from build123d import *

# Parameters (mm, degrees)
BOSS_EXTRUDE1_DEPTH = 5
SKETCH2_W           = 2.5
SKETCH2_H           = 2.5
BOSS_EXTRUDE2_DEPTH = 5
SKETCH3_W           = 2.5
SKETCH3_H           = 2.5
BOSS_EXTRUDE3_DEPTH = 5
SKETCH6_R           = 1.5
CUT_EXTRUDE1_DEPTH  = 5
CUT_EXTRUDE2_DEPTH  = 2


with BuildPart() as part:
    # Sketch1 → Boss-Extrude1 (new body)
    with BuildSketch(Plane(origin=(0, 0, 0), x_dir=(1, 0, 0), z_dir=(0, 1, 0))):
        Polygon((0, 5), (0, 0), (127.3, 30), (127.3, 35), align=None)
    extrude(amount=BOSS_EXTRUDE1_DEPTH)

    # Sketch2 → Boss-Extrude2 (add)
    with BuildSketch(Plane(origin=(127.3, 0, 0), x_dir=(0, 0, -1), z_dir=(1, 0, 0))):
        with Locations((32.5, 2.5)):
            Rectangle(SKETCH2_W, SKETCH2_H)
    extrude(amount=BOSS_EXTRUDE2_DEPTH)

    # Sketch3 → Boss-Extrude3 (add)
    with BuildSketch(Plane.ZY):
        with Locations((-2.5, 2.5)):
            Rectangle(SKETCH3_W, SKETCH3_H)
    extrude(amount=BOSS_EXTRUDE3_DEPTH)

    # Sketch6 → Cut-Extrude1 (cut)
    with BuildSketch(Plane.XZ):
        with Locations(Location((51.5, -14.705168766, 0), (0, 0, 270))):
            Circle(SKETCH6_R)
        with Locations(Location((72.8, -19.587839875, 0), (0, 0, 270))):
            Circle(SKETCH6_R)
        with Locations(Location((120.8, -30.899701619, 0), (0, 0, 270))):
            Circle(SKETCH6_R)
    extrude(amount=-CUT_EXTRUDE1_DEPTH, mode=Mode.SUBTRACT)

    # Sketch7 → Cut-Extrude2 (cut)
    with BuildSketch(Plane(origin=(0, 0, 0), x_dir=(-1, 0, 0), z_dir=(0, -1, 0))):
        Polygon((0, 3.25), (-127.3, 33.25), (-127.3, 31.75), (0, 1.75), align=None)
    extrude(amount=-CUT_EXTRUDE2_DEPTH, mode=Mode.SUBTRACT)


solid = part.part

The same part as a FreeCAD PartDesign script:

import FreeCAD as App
import Part
import Sketcher


def add_polygon(sketch, points):
    """Adds a closed chain of lines whose ends are joined by coincident constraints."""
    first, n = sketch.GeometryCount, len(points)
    for a, b in zip(points, points[1:] + points[:1]):
        sketch.addGeometry(Part.LineSegment(App.Vector(*a, 0), App.Vector(*b, 0)), False)
    for i in range(n):
        sketch.addConstraint(Sketcher.Constraint("Coincident", first + i, 2, first + (i + 1) % n, 1))

doc = App.newDocument("Part")
params = doc.addObject("Spreadsheet::Sheet", "Params")
for row, (alias, value) in enumerate([
    ("sketch1_height", "5 mm"),
    ("pad1_length", "5 mm"),
    ("sketch2_width", "2.5 mm"),
    ("pad2_length", "5 mm"),
    ("sketch3_width", "2.5 mm"),
    ("pad3_length", "5 mm"),
    ("sketch4_diameter", "3 mm"),
    ("pocket1_length", "5 mm"),
    ("sketch5_height", "1.5 mm"),
    ("pocket2_length", "2 mm"),
], start=1):
    params.set(f"A{row}", alias)
    params.set(f"B{row}", "=" + value)
    params.setAlias(f"B{row}", alias)

body = doc.addObject("PartDesign::Body", "Body")

# Sketch on XZ plane
sketch1 = body.newObject("Sketcher::SketchObject", "Sketch")
sketch1.AttachmentSupport = (doc.getObject("XZ_Plane"), [""])
sketch1.MapMode = "FlatFace"
add_polygon(sketch1, [(0, -5), (0, 0), (127, -30), (127, -35)])  # lines 0-3
sketch1.addConstraint([
    Sketcher.Constraint("Vertical", 0),
    Sketcher.Constraint("Vertical", 2),
    Sketcher.Constraint("Coincident", 0, 2, -1, 1),
    Sketcher.Constraint("Parallel", 1, 3),
    Sketcher.Constraint("DistanceY", 0, 1, 0, 2, 5.0),
    Sketcher.Constraint("DistanceY", 1, 2, -1, 1, 30.0),
    Sketcher.Constraint("DistanceX", -1, 1, 1, 2, 127.3),
])
sketch1.setExpression("Constraints[8]", "Params.sketch1_height")
pad1 = body.newObject("PartDesign::Pad", "Pad")
pad1.Profile = sketch1
pad1.setExpression("Length", "Params.pad1_length")
pad1.Reversed = True

# Sketch on YZ plane
sketch2 = body.newObject("Sketcher::SketchObject", "Sketch001")
sketch2.AttachmentSupport = (doc.getObject("YZ_Plane"), [""])
sketch2.MapMode = "FlatFace"
sketch2.AttachmentOffset = App.Placement(App.Vector(0, 0, 127.3), App.Rotation())
add_polygon(sketch2, [(3.8, -31.2), (1.2, -31.2), (1.2, -33.8), (3.8, -33.8)])  # lines 0-3
sketch2.addConstraint([
    Sketcher.Constraint("Horizontal", 0),
    Sketcher.Constraint("Vertical", 1),
    Sketcher.Constraint("Horizontal", 2),
    Sketcher.Constraint("Vertical", 3),
    Sketcher.Constraint("Equal", 2, 1),
    Sketcher.Constraint("DistanceX", 0, 2, 0, 1, 2.5),
    Sketcher.Constraint("DistanceX", -1, 1, 0, 2, 1.25),
    Sketcher.Constraint("DistanceY", 0, 2, -1, 1, 31.25),
])
sketch2.setExpression("Constraints[9]", "Params.sketch2_width")
pad2 = body.newObject("PartDesign::Pad", "Pad001")
pad2.Profile = sketch2
pad2.setExpression("Length", "Params.pad2_length")

# Sketch on YZ plane
sketch3 = body.newObject("Sketcher::SketchObject", "Sketch002")
sketch3.AttachmentSupport = (doc.getObject("YZ_Plane"), [""])
sketch3.MapMode = "FlatFace"
add_polygon(sketch3, [(3.8, -3.8), (1.2, -3.8), (1.2, -1.2), (3.8, -1.2)])  # lines 0-3
sketch3.addConstraint([
    Sketcher.Constraint("Horizontal", 0),
    Sketcher.Constraint("Vertical", 1),
    Sketcher.Constraint("Horizontal", 2),
    Sketcher.Constraint("Vertical", 3),
    Sketcher.Constraint("Equal", 2, 1),
    Sketcher.Constraint("DistanceX", 0, 2, 0, 1, 2.5),
    Sketcher.Constraint("DistanceX", -1, 1, 0, 2, 1.25),
    Sketcher.Constraint("DistanceY", 0, 2, -1, 1, 3.75),
])
sketch3.setExpression("Constraints[9]", "Params.sketch3_width")
pad3 = body.newObject("PartDesign::Pad", "Pad002")
pad3.Profile = sketch3
pad3.setExpression("Length", "Params.pad3_length")
pad3.Reversed = True

# Sketch on XZ plane
sketch4 = body.newObject("Sketcher::SketchObject", "Sketch003")
sketch4.AttachmentSupport = (doc.getObject("XZ_Plane"), [""])
sketch4.MapMode = "FlatFace"
sketch4.addGeometry([
    Part.Circle(App.Vector(51.5, -14.7, 0), App.Vector(0, 0, 1), 1.5),
    Part.Circle(App.Vector(72.8, -19.6, 0), App.Vector(0, 0, 1), 1.5),
    Part.Circle(App.Vector(120.8, -30.9, 0), App.Vector(0, 0, 1), 1.5),
], False)
sketch4.addConstraint([
    Sketcher.Constraint("Equal", 0, 1),
    Sketcher.Constraint("Equal", 1, 2),
    Sketcher.Constraint("Diameter", 0, 3.0),
    Sketcher.Constraint("DistanceX", 1, 3, 2, 3, 48.0),
    Sketcher.Constraint("DistanceX", -1, 1, 0, 3, 51.5),
    Sketcher.Constraint("DistanceX", -1, 1, 1, 3, 72.8),
    Sketcher.Constraint("DistanceY", 2, 3, -1, 1, 30.899702),
    Sketcher.Constraint("DistanceY", 0, 3, -1, 1, 14.705169),
    Sketcher.Constraint("DistanceY", 1, 3, -1, 1, 19.58784),
])
sketch4.setExpression("Constraints[2]", "Params.sketch4_diameter")
pocket1 = body.newObject("PartDesign::Pocket", "Pocket")
pocket1.Profile = sketch4
pocket1.setExpression("Length", "Params.pocket1_length")

# Sketch on XZ plane
sketch5 = body.newObject("Sketcher::SketchObject", "Sketch004")
sketch5.AttachmentSupport = (doc.getObject("XZ_Plane"), [""])
sketch5.MapMode = "FlatFace"
add_polygon(sketch5, [(0, -3.2), (127.3, -33.2), (127.3, -31.8), (0, -1.8)])  # lines 0-3
sketch5.addConstraint([
    Sketcher.Constraint("Vertical", 1),
    Sketcher.Constraint("Vertical", 3),
    Sketcher.Constraint("PointOnObject", 2, 2, -2),
    Sketcher.Constraint("Parallel", 0, 2),
    Sketcher.Constraint("DistanceY", 1, 1, 1, 2, 1.5),
    Sketcher.Constraint("DistanceY", 1, 2, 2, 2, 30.0),
    Sketcher.Constraint("DistanceX", -1, 1, 0, 2, 127.3),
    Sketcher.Constraint("DistanceY", 0, 2, -1, 1, 33.25),
])
sketch5.setExpression("Constraints[8]", "Params.sketch5_height")
pocket2 = body.newObject("PartDesign::Pocket", "Pocket001")
pocket2.Profile = sketch5
pocket2.setExpression("Length", "Params.pocket2_length")

doc.recompute()
